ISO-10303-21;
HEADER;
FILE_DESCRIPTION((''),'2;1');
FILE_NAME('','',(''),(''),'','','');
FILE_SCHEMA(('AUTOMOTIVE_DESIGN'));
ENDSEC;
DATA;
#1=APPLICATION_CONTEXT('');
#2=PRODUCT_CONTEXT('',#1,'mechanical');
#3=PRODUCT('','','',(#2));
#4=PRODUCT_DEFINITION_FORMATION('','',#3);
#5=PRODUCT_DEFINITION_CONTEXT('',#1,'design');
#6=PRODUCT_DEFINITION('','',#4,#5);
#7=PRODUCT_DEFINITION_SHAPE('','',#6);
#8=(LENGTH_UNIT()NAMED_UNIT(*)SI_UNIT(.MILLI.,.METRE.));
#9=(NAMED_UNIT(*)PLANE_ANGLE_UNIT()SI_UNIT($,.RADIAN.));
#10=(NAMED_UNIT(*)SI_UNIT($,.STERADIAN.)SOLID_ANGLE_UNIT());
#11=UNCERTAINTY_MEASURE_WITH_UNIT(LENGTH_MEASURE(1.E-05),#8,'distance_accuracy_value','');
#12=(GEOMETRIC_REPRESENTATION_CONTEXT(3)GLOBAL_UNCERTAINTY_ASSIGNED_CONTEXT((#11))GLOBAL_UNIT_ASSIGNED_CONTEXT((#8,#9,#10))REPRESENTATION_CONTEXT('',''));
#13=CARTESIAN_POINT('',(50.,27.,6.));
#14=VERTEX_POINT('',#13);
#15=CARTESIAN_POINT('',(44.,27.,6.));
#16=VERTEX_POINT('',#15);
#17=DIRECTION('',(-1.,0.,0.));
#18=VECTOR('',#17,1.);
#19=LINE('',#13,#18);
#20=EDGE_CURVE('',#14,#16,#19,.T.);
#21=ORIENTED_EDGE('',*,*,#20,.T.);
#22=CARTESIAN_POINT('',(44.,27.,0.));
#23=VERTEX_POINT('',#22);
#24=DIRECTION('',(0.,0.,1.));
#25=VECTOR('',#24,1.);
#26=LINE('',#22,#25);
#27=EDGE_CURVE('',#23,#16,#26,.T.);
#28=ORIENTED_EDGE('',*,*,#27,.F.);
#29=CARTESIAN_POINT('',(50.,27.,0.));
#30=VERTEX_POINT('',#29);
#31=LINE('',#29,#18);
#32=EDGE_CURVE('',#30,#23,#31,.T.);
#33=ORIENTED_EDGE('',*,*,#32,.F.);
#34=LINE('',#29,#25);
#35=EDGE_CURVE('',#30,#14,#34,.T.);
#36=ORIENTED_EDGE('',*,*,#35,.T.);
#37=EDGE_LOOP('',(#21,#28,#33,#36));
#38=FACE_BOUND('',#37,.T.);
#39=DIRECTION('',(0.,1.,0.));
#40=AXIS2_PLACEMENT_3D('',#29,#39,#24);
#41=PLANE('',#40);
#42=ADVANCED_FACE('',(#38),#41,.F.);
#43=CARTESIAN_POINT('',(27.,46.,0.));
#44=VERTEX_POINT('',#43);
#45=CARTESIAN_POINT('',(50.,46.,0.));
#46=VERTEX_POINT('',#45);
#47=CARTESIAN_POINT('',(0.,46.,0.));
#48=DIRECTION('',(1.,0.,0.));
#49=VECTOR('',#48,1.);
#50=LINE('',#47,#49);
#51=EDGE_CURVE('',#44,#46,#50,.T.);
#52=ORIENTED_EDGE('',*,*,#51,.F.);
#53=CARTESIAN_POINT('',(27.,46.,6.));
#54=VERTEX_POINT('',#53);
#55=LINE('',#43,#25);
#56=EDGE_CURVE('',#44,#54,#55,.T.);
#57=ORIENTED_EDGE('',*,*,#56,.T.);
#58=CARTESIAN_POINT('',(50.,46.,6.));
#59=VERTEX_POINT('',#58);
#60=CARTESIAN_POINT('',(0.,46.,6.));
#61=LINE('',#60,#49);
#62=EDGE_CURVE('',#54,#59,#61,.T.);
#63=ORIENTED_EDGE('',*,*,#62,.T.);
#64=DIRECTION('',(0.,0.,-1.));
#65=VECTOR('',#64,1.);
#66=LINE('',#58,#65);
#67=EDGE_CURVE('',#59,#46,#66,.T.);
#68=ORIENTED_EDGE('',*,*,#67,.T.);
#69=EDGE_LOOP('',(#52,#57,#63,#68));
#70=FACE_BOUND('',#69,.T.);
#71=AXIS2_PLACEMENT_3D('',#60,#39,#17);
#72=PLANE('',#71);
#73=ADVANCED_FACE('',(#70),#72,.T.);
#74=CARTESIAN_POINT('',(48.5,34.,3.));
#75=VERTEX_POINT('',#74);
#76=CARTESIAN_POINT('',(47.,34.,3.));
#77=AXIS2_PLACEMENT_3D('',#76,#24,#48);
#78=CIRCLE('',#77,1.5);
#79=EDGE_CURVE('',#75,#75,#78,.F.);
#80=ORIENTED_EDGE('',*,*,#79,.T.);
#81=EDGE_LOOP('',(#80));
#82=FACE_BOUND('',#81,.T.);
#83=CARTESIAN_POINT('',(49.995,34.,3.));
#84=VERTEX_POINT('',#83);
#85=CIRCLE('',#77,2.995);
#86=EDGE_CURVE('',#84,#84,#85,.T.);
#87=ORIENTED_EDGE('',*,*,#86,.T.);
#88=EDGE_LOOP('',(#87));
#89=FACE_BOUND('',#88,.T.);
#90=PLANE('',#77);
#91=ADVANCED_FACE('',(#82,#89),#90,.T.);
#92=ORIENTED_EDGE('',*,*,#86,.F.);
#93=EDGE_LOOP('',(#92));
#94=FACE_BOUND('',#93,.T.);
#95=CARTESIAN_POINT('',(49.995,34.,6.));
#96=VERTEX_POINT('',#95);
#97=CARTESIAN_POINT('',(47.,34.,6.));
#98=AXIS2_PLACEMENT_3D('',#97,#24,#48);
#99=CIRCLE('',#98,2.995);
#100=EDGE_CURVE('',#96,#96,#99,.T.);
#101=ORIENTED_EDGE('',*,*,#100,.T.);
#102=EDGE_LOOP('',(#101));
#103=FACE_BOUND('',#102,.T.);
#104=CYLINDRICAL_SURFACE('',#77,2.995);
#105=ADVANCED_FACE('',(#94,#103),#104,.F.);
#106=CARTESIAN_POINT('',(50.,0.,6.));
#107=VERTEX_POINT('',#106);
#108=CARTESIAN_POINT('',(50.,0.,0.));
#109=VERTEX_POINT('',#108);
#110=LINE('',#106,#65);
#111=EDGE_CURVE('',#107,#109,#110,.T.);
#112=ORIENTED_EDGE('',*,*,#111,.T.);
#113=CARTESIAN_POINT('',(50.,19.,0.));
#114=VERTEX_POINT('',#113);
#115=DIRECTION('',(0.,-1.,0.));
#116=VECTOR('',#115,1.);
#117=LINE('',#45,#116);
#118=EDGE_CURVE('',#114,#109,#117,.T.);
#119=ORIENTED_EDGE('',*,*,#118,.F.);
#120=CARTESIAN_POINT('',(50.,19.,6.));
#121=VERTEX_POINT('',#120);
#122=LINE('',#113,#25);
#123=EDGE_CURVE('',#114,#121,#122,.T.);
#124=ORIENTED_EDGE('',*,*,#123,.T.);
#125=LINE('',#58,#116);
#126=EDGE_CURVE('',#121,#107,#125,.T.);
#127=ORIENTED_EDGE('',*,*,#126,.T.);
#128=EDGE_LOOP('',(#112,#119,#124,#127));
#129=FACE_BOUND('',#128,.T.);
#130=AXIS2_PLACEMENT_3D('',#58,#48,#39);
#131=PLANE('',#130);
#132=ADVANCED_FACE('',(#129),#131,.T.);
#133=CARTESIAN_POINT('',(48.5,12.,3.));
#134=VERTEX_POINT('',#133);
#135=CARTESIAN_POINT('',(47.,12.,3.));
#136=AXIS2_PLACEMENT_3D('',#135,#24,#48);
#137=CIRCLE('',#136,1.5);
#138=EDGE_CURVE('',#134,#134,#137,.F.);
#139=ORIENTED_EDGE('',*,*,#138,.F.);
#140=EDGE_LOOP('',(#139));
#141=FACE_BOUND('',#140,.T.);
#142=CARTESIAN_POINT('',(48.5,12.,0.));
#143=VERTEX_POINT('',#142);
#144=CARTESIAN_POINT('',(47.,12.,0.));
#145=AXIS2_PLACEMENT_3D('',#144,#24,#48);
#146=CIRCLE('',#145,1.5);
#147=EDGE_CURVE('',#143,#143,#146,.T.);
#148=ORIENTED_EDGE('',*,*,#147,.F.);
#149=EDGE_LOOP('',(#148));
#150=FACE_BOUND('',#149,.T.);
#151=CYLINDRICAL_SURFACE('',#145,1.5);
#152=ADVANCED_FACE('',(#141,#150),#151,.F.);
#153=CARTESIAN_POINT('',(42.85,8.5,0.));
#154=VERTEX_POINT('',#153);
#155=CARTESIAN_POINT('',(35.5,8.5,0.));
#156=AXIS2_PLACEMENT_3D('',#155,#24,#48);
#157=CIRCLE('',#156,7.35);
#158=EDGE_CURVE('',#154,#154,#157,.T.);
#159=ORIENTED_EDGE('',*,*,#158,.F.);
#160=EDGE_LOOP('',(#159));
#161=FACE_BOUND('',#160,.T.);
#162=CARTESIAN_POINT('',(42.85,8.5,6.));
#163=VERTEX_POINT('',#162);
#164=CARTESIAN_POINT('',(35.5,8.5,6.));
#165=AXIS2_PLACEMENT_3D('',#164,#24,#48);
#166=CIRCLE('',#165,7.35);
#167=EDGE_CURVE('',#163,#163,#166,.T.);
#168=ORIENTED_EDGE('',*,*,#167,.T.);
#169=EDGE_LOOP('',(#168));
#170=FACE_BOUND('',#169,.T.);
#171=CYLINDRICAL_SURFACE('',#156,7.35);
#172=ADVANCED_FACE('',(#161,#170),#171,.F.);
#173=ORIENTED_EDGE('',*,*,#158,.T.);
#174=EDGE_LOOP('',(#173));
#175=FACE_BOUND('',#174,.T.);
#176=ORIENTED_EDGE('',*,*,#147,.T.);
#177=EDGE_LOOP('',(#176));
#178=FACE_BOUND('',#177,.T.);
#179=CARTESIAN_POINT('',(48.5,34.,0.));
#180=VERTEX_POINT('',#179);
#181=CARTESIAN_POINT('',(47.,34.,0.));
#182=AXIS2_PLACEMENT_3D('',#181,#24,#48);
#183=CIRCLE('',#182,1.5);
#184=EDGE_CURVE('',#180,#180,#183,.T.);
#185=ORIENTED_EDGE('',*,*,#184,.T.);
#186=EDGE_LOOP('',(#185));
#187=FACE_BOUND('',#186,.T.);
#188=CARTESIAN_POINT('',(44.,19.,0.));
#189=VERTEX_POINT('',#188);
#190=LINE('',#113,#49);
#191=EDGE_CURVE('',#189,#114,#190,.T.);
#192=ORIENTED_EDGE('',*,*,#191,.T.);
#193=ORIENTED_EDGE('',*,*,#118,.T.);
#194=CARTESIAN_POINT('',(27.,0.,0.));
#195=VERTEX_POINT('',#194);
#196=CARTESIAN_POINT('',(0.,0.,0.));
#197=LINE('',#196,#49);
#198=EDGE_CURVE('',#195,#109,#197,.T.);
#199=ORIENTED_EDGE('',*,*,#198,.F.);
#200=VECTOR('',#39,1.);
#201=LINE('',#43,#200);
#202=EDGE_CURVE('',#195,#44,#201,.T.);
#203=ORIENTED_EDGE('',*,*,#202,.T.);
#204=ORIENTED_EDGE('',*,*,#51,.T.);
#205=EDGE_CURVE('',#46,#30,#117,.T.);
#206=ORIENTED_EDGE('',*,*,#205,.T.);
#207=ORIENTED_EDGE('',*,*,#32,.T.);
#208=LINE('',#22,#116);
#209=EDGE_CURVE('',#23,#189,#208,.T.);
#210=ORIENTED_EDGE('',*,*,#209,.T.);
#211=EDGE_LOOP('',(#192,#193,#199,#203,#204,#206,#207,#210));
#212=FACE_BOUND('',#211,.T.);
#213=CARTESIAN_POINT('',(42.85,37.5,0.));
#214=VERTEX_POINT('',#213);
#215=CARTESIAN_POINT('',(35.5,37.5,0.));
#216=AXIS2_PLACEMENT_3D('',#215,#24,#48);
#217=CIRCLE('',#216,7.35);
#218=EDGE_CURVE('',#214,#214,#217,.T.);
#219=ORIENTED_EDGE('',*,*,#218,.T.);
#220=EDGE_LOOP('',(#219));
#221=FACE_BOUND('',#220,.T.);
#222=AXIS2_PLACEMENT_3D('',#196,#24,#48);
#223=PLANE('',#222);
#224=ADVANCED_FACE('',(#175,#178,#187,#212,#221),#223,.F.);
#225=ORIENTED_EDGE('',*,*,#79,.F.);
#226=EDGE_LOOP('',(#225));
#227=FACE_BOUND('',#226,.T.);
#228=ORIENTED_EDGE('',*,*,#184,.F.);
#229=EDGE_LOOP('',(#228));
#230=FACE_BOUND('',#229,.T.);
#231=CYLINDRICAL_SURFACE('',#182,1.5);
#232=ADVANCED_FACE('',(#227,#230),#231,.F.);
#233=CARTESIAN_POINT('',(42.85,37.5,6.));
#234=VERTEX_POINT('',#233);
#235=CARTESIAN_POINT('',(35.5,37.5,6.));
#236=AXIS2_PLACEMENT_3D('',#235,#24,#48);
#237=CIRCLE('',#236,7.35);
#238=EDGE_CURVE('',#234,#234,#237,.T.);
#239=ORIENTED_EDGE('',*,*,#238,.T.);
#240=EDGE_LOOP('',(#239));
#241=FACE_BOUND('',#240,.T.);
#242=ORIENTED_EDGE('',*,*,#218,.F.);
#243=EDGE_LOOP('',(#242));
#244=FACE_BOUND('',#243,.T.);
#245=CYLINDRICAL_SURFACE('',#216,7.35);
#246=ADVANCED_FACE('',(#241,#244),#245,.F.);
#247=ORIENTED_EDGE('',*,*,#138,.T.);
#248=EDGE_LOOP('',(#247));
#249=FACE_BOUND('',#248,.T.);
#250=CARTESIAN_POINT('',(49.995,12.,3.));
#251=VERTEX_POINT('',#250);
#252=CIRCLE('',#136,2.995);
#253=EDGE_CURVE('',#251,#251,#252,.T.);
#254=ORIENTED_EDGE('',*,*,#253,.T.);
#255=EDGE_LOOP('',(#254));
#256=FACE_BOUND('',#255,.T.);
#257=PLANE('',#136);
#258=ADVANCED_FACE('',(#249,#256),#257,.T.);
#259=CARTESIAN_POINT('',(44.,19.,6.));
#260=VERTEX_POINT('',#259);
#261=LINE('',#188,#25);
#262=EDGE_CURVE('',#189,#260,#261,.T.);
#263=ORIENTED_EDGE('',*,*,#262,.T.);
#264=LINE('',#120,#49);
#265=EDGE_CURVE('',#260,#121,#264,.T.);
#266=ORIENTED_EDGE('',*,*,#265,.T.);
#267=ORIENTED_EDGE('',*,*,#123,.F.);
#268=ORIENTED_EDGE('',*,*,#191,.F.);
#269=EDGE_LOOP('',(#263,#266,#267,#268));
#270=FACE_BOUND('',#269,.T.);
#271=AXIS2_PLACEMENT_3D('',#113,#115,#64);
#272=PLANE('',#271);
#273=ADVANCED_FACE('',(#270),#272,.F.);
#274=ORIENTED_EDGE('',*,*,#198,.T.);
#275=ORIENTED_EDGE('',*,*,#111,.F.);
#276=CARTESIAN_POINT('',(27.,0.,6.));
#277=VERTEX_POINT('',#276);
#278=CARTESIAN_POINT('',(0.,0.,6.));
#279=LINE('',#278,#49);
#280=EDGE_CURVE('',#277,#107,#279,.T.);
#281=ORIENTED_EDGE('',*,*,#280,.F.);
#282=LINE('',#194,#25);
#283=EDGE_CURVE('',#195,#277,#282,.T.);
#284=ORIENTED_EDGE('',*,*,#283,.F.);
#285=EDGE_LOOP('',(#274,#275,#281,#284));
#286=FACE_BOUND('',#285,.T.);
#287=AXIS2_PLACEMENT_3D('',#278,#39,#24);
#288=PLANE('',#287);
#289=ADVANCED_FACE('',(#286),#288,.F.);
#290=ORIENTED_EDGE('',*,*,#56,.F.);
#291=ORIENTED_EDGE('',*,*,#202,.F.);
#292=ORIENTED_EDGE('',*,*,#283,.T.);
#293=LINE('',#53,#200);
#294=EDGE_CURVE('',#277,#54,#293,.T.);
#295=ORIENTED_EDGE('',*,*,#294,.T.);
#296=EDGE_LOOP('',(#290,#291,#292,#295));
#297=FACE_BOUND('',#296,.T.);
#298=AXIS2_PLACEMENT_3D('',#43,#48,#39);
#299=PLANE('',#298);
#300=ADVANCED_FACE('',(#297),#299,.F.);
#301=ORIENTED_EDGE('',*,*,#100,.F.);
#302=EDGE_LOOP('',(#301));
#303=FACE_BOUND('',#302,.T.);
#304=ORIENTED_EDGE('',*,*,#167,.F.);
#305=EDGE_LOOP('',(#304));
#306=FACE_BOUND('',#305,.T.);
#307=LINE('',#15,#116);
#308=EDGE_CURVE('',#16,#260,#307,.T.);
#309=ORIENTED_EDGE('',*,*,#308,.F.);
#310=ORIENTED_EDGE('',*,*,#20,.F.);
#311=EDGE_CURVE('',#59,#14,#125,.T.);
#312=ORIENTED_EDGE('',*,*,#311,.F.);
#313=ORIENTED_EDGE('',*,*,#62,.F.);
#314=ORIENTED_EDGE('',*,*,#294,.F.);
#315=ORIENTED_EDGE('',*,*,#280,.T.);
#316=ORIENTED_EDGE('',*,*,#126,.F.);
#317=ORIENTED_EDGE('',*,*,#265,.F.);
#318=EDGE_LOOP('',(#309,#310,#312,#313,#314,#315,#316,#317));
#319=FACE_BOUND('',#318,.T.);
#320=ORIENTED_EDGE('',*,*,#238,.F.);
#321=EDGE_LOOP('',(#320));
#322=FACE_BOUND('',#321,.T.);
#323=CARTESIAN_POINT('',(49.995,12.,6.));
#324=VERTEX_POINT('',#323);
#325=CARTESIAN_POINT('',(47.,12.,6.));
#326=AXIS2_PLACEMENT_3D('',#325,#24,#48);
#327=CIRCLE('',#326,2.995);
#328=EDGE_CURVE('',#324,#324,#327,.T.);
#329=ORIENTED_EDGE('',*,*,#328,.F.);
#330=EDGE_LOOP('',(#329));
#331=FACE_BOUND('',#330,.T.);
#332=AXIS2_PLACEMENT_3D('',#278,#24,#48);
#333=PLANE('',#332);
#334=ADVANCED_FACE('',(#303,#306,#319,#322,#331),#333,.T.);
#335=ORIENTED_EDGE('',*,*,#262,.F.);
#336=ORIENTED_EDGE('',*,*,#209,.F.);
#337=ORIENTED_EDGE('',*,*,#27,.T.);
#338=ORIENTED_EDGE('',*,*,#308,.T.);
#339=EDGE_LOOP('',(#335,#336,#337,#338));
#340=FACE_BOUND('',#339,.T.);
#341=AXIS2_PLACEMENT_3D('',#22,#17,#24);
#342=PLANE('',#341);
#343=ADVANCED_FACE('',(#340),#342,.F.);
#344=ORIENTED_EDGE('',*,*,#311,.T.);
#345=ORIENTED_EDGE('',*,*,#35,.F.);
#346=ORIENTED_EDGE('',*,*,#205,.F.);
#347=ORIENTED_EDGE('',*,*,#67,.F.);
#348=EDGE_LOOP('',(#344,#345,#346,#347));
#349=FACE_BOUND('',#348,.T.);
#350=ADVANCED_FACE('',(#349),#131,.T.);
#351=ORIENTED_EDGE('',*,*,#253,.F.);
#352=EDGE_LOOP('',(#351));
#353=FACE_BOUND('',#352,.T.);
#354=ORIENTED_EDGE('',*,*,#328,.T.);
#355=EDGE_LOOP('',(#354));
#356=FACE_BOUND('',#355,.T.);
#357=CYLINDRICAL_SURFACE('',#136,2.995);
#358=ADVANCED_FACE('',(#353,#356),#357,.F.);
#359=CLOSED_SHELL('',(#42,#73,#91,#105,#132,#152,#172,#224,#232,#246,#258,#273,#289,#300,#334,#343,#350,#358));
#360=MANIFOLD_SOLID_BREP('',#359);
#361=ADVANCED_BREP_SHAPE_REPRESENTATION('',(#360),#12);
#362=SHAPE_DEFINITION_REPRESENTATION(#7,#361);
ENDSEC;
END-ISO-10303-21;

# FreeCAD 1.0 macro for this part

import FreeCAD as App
import Part
import Sketcher
Q = App.Units.Quantity

doc = App.newDocument("Part")
params = doc.addObject("Spreadsheet::Sheet", "Params")
for row, (alias, value) in enumerate([
    ("sketch1_width", "50 mm"),
    ("sketch1_height", "46 mm"),
    ("pad1_length", "6 mm"),
    ("sketch2_width", "27 mm"),
    ("sketch2_height", "46 mm"),
    ("pocket1_length", "6 mm"),
    ("sketch3_diameter", "14.7 mm"),
    ("pocket2_length", "6 mm"),
    ("sketch4_diameter", "3 mm"),
    ("pocket3_length", "6 mm"),
    ("sketch5_diameter", "5.99 mm"),
    ("pocket4_length", "3 mm"),
    ("sketch6_width", "6 mm"),
    ("sketch6_height", "8 mm"),
    ("pocket5_length", "6 mm"),
], start=1):
    params.set(f"A{row}", alias)
    params.set(f"B{row}", "=" + value)
    params.setAlias(f"B{row}", alias)

body = doc.addObject("PartDesign::Body", "Body")

# Sketch on XY plane
sketch1 = body.newObject("Sketcher::SketchObject", "Sketch")
sketch1.AttachmentSupport = (doc.getObject("XY_Plane"), [""])
sketch1.MapMode = "FlatFace"
sketch1.addGeometry(Part.LineSegment(App.Vector(0, 46, 0), App.Vector(0, 0, 0)), False)
sketch1.addGeometry(Part.LineSegment(App.Vector(0, 0, 0), App.Vector(50, 0, 0)), False)
sketch1.addGeometry(Part.LineSegment(App.Vector(50, 0, 0), App.Vector(50, 46, 0)), False)
sketch1.addGeometry(Part.LineSegment(App.Vector(50, 46, 0), App.Vector(0, 46, 0)), False)
sketch1.addConstraint(Sketcher.Constraint("Coincident", 0, 2, 1, 1))
sketch1.addConstraint(Sketcher.Constraint("Coincident", 1, 2, 2, 1))
sketch1.addConstraint(Sketcher.Constraint("Coincident", 2, 2, 3, 1))
sketch1.addConstraint(Sketcher.Constraint("Coincident", 3, 2, 0, 1))
sketch1.addConstraint(Sketcher.Constraint("Vertical", 0))
sketch1.addConstraint(Sketcher.Constraint("Horizontal", 1))
sketch1.addConstraint(Sketcher.Constraint("Vertical", 2))
sketch1.addConstraint(Sketcher.Constraint("Horizontal", 3))
sketch1.addConstraint(Sketcher.Constraint("Coincident", 0, 2, -1, 1))
sketch1.addConstraint(Sketcher.Constraint("DistanceX", 1, 1, 1, 2, Q("50 mm")))
sketch1.addConstraint(Sketcher.Constraint("DistanceY", 0, 2, 0, 1, Q("46 mm")))
sketch1.setExpression("Constraints[9]", "Params.sketch1_width")
sketch1.setExpression("Constraints[10]", "Params.sketch1_height")
pad1 = body.newObject("PartDesign::Pad", "Pad")
pad1.Profile = sketch1
pad1.setExpression("Length", "Params.pad1_length")

# Sketch on XY plane
sketch2 = body.newObject("Sketcher::SketchObject", "Sketch001")
sketch2.AttachmentSupport = (doc.getObject("XY_Plane"), [""])
sketch2.MapMode = "FlatFace"
sketch2.AttachmentOffset = App.Placement(App.Vector(0, 0, 6), App.Rotation())
sketch2.addGeometry(Part.LineSegment(App.Vector(0, 46, 0), App.Vector(0, 0, 0)), False)
sketch2.addGeometry(Part.LineSegment(App.Vector(0, 0, 0), App.Vector(27, 0, 0)), False)
sketch2.addGeometry(Part.LineSegment(App.Vector(27, 0, 0), App.Vector(27, 46, 0)), False)
sketch2.addGeometry(Part.LineSegment(App.Vector(27, 46, 0), App.Vector(0, 46, 0)), False)
sketch2.addConstraint(Sketcher.Constraint("Coincident", 0, 2, 1, 1))
sketch2.addConstraint(Sketcher.Constraint("Coincident", 1, 2, 2, 1))
sketch2.addConstraint(Sketcher.Constraint("Coincident", 2, 2, 3, 1))
sketch2.addConstraint(Sketcher.Constraint("Coincident", 3, 2, 0, 1))
sketch2.addConstraint(Sketcher.Constraint("Vertical", 0))
sketch2.addConstraint(Sketcher.Constraint("Horizontal", 1))
sketch2.addConstraint(Sketcher.Constraint("Vertical", 2))
sketch2.addConstraint(Sketcher.Constraint("Horizontal", 3))
sketch2.addConstraint(Sketcher.Constraint("Coincident", 0, 2, -1, 1))
sketch2.addConstraint(Sketcher.Constraint("DistanceX", 1, 1, 1, 2, Q("27 mm")))
sketch2.addConstraint(Sketcher.Constraint("DistanceY", 0, 2, 0, 1, Q("46 mm")))
sketch2.setExpression("Constraints[9]", "Params.sketch2_width")
sketch2.setExpression("Constraints[10]", "Params.sketch2_height")
pocket1 = body.newObject("PartDesign::Pocket", "Pocket")
pocket1.Profile = sketch2
pocket1.setExpression("Length", "Params.pocket1_length")

# Sketch on XY plane
sketch3 = body.newObject("Sketcher::SketchObject", "Sketch002")
sketch3.AttachmentSupport = (doc.getObject("XY_Plane"), [""])
sketch3.MapMode = "FlatFace"
sketch3.AttachmentOffset = App.Placement(App.Vector(0, 0, 6), App.Rotation())
sketch3.addGeometry(Part.Circle(App.Vector(36, 38, 0), App.Vector(0, 0, 1), 7), False)
sketch3.addGeometry(Part.Circle(App.Vector(36, 8, 0), App.Vector(0, 0, 1), 7), False)
sketch3.addConstraint(Sketcher.Constraint("Equal", 0, 1))
sketch3.addConstraint(Sketcher.Constraint("Vertical", 0, 3, 1, 3))
sketch3.addConstraint(Sketcher.Constraint("Diameter", 0, Q("14.7 mm")))
sketch3.addConstraint(Sketcher.Constraint("DistanceY", 1, 3, 0, 3, Q("29 mm")))
sketch3.addConstraint(Sketcher.Constraint("DistanceX", -1, 1, 0, 3, Q("35.5 mm")))
sketch3.addConstraint(Sketcher.Constraint("DistanceY", -1, 1, 0, 3, Q("37.5 mm")))
sketch3.setExpression("Constraints[2]", "Params.sketch3_diameter")
pocket2 = body.newObject("PartDesign::Pocket", "Pocket001")
pocket2.Profile = sketch3
pocket2.setExpression("Length", "Params.pocket2_length")

# Sketch on XY plane
sketch4 = body.newObject("Sketcher::SketchObject", "Sketch003")
sketch4.AttachmentSupport = (doc.getObject("XY_Plane"), [""])
sketch4.MapMode = "FlatFace"
sketch4.AttachmentOffset = App.Placement(App.Vector(0, 0, 6), App.Rotation())
sketch4.addGeometry(Part.Circle(App.Vector(47, 34, 0), App.Vector(0, 0, 1), 1.5), False)
sketch4.addGeometry(Part.Circle(App.Vector(47, 12, 0), App.Vector(0, 0, 1), 1.5), False)
sketch4.addConstraint(Sketcher.Constraint("Equal", 0, 1))
sketch4.addConstraint(Sketcher.Constraint("Vertical", 0, 3, 1, 3))
sketch4.addConstraint(Sketcher.Constraint("Diameter", 0, Q("3 mm")))
sketch4.addConstraint(Sketcher.Constraint("DistanceX", -1, 1, 0, 3, Q("47 mm")))
sketch4.addConstraint(Sketcher.Constraint("DistanceY", -1, 1, 0, 3, Q("34 mm")))
sketch4.addConstraint(Sketcher.Constraint("DistanceY", -1, 1, 1, 3, Q("12 mm")))
sketch4.setExpression("Constraints[2]", "Params.sketch4_diameter")
pocket3 = body.newObject("PartDesign::Pocket", "Pocket002")
pocket3.Profile = sketch4
pocket3.setExpression("Length", "Params.pocket3_length")

# Sketch on XY plane
sketch5 = body.newObject("Sketcher::SketchObject", "Sketch004")
sketch5.AttachmentSupport = (doc.getObject("XY_Plane"), [""])
sketch5.MapMode = "FlatFace"
sketch5.AttachmentOffset = App.Placement(App.Vector(0, 0, 6), App.Rotation())
sketch5.addGeometry(Part.Circle(App.Vector(47, 12, 0), App.Vector(0, 0, 1), 3), False)
sketch5.addGeometry(Part.Circle(App.Vector(47, 34, 0), App.Vector(0, 0, 1), 3), False)
sketch5.addConstraint(Sketcher.Constraint("Equal", 0, 1))
sketch5.addConstraint(Sketcher.Constraint("Vertical", 0, 3, 1, 3))
sketch5.addConstraint(Sketcher.Constraint("Diameter", 0, Q("5.99 mm")))
sketch5.addConstraint(Sketcher.Constraint("DistanceX", -1, 1, 0, 3, Q("47 mm")))
sketch5.addConstraint(Sketcher.Constraint("DistanceY", -1, 1, 0, 3, Q("12 mm")))
sketch5.addConstraint(Sketcher.Constraint("DistanceY", -1, 1, 1, 3, Q("34 mm")))
sketch5.setExpression("Constraints[2]", "Params.sketch5_diameter")
pocket4 = body.newObject("PartDesign::Pocket", "Pocket003")
pocket4.Profile = sketch5
pocket4.setExpression("Length", "Params.pocket4_length")

# Sketch on XY plane
sketch6 = body.newObject("Sketcher::SketchObject", "Sketch005")
sketch6.AttachmentSupport = (doc.getObject("XY_Plane"), [""])
sketch6.MapMode = "FlatFace"
sketch6.AttachmentOffset = App.Placement(App.Vector(0, 0, 6), App.Rotation())
sketch6.addGeometry(Part.LineSegment(App.Vector(44, 27, 0), App.Vector(44, 19, 0)), False)
sketch6.addGeometry(Part.LineSegment(App.Vector(44, 19, 0), App.Vector(50, 19, 0)), False)
sketch6.addGeometry(Part.LineSegment(App.Vector(50, 19, 0), App.Vector(50, 27, 0)), False)
sketch6.addGeometry(Part.LineSegment(App.Vector(50, 27, 0), App.Vector(44, 27, 0)), False)
sketch6.addConstraint(Sketcher.Constraint("Coincident", 0, 2, 1, 1))
sketch6.addConstraint(Sketcher.Constraint("Coincident", 1, 2, 2, 1))
sketch6.addConstraint(Sketcher.Constraint("Coincident", 2, 2, 3, 1))
sketch6.addConstraint(Sketcher.Constraint("Coincident", 3, 2, 0, 1))
sketch6.addConstraint(Sketcher.Constraint("Vertical", 0))
sketch6.addConstraint(Sketcher.Constraint("Horizontal", 1))
sketch6.addConstraint(Sketcher.Constraint("Vertical", 2))
sketch6.addConstraint(Sketcher.Constraint("Horizontal", 3))
sketch6.addConstraint(Sketcher.Constraint("DistanceX", 1, 1, 1, 2, Q("6 mm")))
sketch6.addConstraint(Sketcher.Constraint("DistanceY", 0, 2, 0, 1, Q("8 mm")))
sketch6.addConstraint(Sketcher.Constraint("DistanceX", -1, 1, 0, 2, Q("44 mm")))
sketch6.addConstraint(Sketcher.Constraint("DistanceY", -1, 1, 0, 2, Q("19 mm")))
sketch6.setExpression("Constraints[8]", "Params.sketch6_width")
sketch6.setExpression("Constraints[9]", "Params.sketch6_height")
pocket5 = body.newObject("PartDesign::Pocket", "Pocket004")
pocket5.Profile = sketch6
pocket5.setExpression("Length", "Params.pocket5_length")

doc.recompute()
